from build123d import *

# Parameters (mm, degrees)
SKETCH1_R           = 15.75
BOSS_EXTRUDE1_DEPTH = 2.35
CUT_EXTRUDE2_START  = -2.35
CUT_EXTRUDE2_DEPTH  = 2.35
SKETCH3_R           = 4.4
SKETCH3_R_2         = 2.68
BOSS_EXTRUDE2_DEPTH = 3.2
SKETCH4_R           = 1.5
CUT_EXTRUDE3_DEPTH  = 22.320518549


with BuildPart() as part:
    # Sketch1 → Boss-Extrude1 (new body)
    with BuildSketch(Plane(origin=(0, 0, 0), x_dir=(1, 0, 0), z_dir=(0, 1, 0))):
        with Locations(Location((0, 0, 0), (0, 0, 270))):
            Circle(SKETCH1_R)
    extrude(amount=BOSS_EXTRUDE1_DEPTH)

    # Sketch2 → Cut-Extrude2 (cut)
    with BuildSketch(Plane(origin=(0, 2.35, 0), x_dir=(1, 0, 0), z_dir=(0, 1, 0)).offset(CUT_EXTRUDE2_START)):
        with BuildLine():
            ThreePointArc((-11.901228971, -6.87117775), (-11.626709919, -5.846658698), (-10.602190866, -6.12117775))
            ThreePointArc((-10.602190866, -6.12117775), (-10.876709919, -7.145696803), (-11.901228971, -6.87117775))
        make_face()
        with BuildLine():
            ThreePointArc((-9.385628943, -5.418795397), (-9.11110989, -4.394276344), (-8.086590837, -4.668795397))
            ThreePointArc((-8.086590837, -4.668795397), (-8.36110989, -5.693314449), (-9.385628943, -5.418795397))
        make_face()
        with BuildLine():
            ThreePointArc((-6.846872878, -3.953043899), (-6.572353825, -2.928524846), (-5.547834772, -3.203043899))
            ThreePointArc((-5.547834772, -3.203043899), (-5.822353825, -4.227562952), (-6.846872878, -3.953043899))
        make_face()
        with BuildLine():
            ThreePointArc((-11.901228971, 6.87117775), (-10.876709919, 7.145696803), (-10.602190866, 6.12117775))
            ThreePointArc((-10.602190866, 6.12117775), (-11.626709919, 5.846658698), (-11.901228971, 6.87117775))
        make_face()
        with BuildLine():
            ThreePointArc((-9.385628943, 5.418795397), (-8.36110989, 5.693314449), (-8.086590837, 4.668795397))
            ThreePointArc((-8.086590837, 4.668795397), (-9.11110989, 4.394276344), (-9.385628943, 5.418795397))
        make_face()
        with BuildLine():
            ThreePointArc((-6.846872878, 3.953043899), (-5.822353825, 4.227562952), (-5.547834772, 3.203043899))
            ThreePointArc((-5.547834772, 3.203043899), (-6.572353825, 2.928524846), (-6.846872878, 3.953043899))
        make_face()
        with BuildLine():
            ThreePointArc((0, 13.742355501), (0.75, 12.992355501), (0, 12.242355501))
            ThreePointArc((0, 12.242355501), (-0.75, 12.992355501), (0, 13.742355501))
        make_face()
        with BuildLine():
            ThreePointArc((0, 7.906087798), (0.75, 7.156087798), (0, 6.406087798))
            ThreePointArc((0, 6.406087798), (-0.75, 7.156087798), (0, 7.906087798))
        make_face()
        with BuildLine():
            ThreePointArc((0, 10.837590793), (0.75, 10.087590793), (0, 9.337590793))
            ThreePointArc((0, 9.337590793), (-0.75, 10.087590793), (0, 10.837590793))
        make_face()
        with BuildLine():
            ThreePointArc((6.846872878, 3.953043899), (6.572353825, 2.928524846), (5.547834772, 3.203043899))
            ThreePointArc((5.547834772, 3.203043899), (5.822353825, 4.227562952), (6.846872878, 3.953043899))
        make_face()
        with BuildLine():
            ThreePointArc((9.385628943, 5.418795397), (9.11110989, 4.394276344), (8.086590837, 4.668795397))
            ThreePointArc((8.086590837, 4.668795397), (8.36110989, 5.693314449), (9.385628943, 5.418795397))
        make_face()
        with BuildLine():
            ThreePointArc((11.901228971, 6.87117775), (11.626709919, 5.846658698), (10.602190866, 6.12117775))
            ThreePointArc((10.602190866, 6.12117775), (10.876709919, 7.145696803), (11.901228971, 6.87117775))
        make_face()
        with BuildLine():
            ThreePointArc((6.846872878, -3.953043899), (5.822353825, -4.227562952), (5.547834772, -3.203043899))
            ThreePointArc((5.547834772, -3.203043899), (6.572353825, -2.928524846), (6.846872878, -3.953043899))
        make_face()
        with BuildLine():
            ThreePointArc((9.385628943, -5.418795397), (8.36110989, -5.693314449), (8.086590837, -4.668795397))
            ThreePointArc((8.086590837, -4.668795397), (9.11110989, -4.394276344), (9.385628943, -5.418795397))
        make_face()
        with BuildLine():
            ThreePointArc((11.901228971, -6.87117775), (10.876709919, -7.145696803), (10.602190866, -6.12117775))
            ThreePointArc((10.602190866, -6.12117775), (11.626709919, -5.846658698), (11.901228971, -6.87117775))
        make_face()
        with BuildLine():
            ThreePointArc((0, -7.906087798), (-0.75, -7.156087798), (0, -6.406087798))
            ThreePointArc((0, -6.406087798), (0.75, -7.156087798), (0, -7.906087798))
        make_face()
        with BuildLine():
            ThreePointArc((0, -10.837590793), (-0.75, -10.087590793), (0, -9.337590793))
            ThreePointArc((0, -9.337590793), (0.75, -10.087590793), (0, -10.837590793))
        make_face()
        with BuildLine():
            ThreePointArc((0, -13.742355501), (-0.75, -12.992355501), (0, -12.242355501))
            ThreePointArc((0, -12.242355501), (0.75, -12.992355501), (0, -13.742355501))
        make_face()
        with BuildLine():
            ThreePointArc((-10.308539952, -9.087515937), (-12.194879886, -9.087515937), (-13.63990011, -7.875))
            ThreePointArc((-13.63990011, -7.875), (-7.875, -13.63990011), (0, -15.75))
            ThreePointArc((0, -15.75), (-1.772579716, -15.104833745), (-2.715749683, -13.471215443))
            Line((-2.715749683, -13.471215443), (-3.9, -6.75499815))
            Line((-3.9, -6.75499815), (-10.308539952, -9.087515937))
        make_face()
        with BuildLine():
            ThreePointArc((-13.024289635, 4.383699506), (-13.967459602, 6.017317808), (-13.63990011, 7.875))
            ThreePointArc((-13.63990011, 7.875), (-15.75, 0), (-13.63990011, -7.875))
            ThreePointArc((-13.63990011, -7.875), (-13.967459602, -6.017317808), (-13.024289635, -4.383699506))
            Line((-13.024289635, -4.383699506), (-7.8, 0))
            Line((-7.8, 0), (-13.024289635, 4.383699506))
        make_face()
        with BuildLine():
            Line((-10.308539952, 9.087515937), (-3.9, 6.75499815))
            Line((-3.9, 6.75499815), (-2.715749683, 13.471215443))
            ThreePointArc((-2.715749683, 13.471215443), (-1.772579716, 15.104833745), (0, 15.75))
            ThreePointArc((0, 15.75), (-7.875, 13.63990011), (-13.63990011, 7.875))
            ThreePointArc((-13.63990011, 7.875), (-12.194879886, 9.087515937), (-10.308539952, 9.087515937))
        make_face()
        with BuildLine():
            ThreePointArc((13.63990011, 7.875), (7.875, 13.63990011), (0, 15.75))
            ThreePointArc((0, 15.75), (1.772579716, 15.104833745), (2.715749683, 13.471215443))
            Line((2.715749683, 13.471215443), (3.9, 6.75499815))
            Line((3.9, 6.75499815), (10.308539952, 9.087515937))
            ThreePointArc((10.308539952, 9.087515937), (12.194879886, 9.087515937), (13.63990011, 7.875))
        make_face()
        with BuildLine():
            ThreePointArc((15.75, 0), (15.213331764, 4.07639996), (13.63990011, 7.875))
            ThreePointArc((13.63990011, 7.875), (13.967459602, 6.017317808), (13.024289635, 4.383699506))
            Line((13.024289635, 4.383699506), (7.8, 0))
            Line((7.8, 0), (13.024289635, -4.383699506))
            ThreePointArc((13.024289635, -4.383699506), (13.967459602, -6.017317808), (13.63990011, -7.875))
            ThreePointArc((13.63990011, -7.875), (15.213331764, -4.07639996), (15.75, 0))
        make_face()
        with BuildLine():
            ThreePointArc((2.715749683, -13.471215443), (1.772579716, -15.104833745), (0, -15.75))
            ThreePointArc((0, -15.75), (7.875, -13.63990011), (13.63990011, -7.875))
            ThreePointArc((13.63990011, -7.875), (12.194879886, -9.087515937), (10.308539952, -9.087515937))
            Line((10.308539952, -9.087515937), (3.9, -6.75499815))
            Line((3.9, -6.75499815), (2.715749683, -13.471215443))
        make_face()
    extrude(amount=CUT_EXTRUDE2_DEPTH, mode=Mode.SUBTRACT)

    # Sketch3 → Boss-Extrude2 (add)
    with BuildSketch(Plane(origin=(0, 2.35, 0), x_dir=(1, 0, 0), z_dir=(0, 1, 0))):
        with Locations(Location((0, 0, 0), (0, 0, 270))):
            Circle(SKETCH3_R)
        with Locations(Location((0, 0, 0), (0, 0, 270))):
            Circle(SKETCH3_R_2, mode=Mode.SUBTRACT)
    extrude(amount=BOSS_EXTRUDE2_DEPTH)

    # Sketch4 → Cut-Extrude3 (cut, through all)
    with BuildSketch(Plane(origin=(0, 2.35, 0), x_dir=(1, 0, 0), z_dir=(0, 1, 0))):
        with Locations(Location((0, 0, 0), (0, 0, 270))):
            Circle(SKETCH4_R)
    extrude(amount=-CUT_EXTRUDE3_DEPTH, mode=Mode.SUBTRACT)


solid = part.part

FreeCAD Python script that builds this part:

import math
import FreeCAD as App
import Part
import Sketcher

V = App.Vector
Q = App.Units.Quantity

doc = App.newDocument("Part")
body = doc.addObject("PartDesign::Body", "Body")

# Sketch on XZ plane
sketch1 = body.newObject("Sketcher::SketchObject", "Sketch")
sketch1.AttachmentSupport = (doc.getObject("XZ_Plane"), [""])
sketch1.MapMode = "FlatFace"
sketch1.addGeometry(Part.Circle(V(0, 0, 0), V(0, 0, 1), 15.75), False)
sketch1.addConstraint(Sketcher.Constraint("Coincident", 0, 3, -1, 1))
sketch1.addConstraint(Sketcher.Constraint("Diameter", 0, Q("31.5 mm")))
pad1 = body.newObject("PartDesign::Pad", "Pad")
pad1.Profile = sketch1
pad1.Length = 2.35
pad1.Reversed = True

# Sketch on XZ plane
sketch2 = body.newObject("Sketcher::SketchObject", "Sketch001")
sketch2.AttachmentSupport = (doc.getObject("XZ_Plane"), [""])
sketch2.MapMode = "FlatFace"
sketch2.addGeometry(Part.Circle(V(-11.25171, 6.496178, 0), V(0, 0, 1), 0.75), False)
sketch2.addGeometry(Part.ArcOfCircle(Part.Circle(V(-8.73611, 5.043795, 0), V(0, 0, 1), 0.75), math.radians(150), math.radians(330)), False)
sketch2.addGeometry(Part.ArcOfCircle(Part.Circle(V(-8.73611, 5.043795, 0), V(0, 0, 1), 0.75), math.radians(-30), math.radians(150)), False)
sketch2.addGeometry(Part.Circle(V(-6.197354, 3.578044, 0), V(0, 0, 1), 0.75), False)
sketch2.addGeometry(Part.Circle(V(-11.25171, -6.496178, 0), V(0, 0, 1), 0.75), False)
sketch2.addGeometry(Part.ArcOfCircle(Part.Circle(V(-8.73611, -5.043795, 0), V(0, 0, 1), 0.75), math.radians(-150), math.radians(30)), False)
sketch2.addGeometry(Part.ArcOfCircle(Part.Circle(V(-8.73611, -5.043795, 0), V(0, 0, 1), 0.75), math.radians(30), math.radians(210)), False)
sketch2.addGeometry(Part.Circle(V(-6.197354, -3.578044, 0), V(0, 0, 1), 0.75), False)
sketch2.addGeometry(Part.Circle(V(0, -12.992356, 0), V(0, 0, 1), 0.75), False)
sketch2.addGeometry(Part.Circle(V(0, -7.156088, 0), V(0, 0, 1), 0.75), False)
sketch2.addGeometry(Part.Circle(V(0, -10.087591, 0), V(0, 0, 1), 0.75), False)
sketch2.addGeometry(Part.Circle(V(6.197354, -3.578044, 0), V(0, 0, 1), 0.75), False)
sketch2.addGeometry(Part.ArcOfCircle(Part.Circle(V(8.73611, -5.043795, 0), V(0, 0, 1), 0.75), math.radians(-30), math.radians(150)), False)
sketch2.addGeometry(Part.ArcOfCircle(Part.Circle(V(8.73611, -5.043795, 0), V(0, 0, 1), 0.75), math.radians(150), math.radians(330)), False)
sketch2.addGeometry(Part.Circle(V(11.25171, -6.496178, 0), V(0, 0, 1), 0.75), False)
sketch2.addGeometry(Part.Circle(V(6.197354, 3.578044, 0), V(0, 0, 1), 0.75), False)
sketch2.addGeometry(Part.ArcOfCircle(Part.Circle(V(8.73611, 5.043795, 0), V(0, 0, 1), 0.75), math.radians(30), math.radians(210)), False)
sketch2.addGeometry(Part.ArcOfCircle(Part.Circle(V(8.73611, 5.043795, 0), V(0, 0, 1), 0.75), math.radians(-150), math.radians(30)), False)
sketch2.addGeometry(Part.Circle(V(11.25171, 6.496178, 0), V(0, 0, 1), 0.75), False)
sketch2.addGeometry(Part.Circle(V(0, 7.156088, 0), V(0, 0, 1), 0.75), False)
sketch2.addGeometry(Part.Circle(V(0, 10.087591, 0), V(0, 0, 1), 0.75), False)
sketch2.addGeometry(Part.Circle(V(0, 12.992356, 0), V(0, 0, 1), 0.75), False)
sketch2.addGeometry(Part.ArcOfCircle(Part.Circle(V(-11.25171, 6.496178, 0), V(0, 0, 1), 2.757644), math.radians(70), math.radians(150)), False)
sketch2.addGeometry(Part.ArcOfCircle(Part.Circle(V(0, 0, 0), V(0, 0, 1), 15.75), math.radians(90), math.radians(150)), False)
sketch2.addGeometry(Part.ArcOfCircle(Part.Circle(V(0, 12.992355, 0), V(0, 0, 1), 2.757645), math.radians(90), math.radians(170)), False)
sketch2.addGeometry(Part.LineSegment(V(-2.71575, 13.471215, 0), V(-3.9, 6.754998, 0)), False)
sketch2.addGeometry(Part.LineSegment(V(-3.9, 6.754998, 0), V(-10.30854, 9.087516, 0)), False)
sketch2.addGeometry(Part.ArcOfCircle(Part.Circle(V(-11.25171, -6.496178, 0), V(0, 0, 1), 2.757644), math.radians(130), math.radians(210)), False)
sketch2.addGeometry(Part.ArcOfCircle(Part.Circle(V(0, 0, 0), V(0, 0, 1), 15.75), math.radians(150), math.radians(210)), False)
sketch2.addGeometry(Part.ArcOfCircle(Part.Circle(V(-11.25171, 6.496178, 0), V(0, 0, 1), 2.757644), math.radians(150), math.radians(230)), False)
sketch2.addGeometry(Part.LineSegment(V(-13.02429, 4.3837, 0), V(-7.8, 0, 0)), False)
sketch2.addGeometry(Part.LineSegment(V(-7.8, 0, 0), V(-13.02429, -4.3837, 0)), False)
sketch2.addGeometry(Part.LineSegment(V(-10.30854, -9.087516, 0), V(-3.9, -6.754998, 0)), False)
sketch2.addGeometry(Part.LineSegment(V(-3.9, -6.754998, 0), V(-2.71575, -13.471215, 0)), False)
sketch2.addGeometry(Part.ArcOfCircle(Part.Circle(V(0, -12.992355, 0), V(0, 0, 1), 2.757645), math.radians(-170), math.radians(-90)), False)
sketch2.addGeometry(Part.ArcOfCircle(Part.Circle(V(0, 0, 0), V(0, 0, 1), 15.75), math.radians(-150), math.radians(-90)), False)
sketch2.addGeometry(Part.ArcOfCircle(Part.Circle(V(-11.25171, -6.496178, 0), V(0, 0, 1), 2.757644), math.radians(-150), math.radians(-70)), False)
sketch2.addGeometry(Part.ArcOfCircle(Part.Circle(V(0, 0, 0), V(0, 0, 1), 15.75), math.radians(-90), math.radians(-30)), False)
sketch2.addGeometry(Part.ArcOfCircle(Part.Circle(V(0, -12.992355, 0), V(0, 0, 1), 2.757645), math.radians(-90), math.radians(-10)), False)
sketch2.addGeometry(Part.LineSegment(V(2.71575, -13.471215, 0), V(3.9, -6.754998, 0)), False)
sketch2.addGeometry(Part.LineSegment(V(3.9, -6.754998, 0), V(10.30854, -9.087516, 0)), False)
sketch2.addGeometry(Part.ArcOfCircle(Part.Circle(V(11.25171, -6.496178, 0), V(0, 0, 1), 2.757644), math.radians(-110), math.radians(-30)), False)
sketch2.addGeometry(Part.ArcOfCircle(Part.Circle(V(0, 0, 0), V(0, 0, 1), 15.75), math.radians(-30), math.radians(0)), False)
sketch2.addGeometry(Part.ArcOfCircle(Part.Circle(V(11.25171, -6.496178, 0), V(0, 0, 1), 2.757644), math.radians(-30), math.radians(50)), False)
sketch2.addGeometry(Part.LineSegment(V(13.02429, -4.3837, 0), V(7.8, 0, 0)), False)
sketch2.addGeometry(Part.LineSegment(V(7.8, 0, 0), V(13.02429, 4.3837, 0)), False)
sketch2.addGeometry(Part.ArcOfCircle(Part.Circle(V(11.25171, 6.496178, 0), V(0, 0, 1), 2.757644), math.radians(-50), math.radians(30)), False)
sketch2.addGeometry(Part.ArcOfCircle(Part.Circle(V(0, 0, 0), V(0, 0, 1), 15.75), math.radians(0), math.radians(30)), False)
sketch2.addGeometry(Part.ArcOfCircle(Part.Circle(V(0, 12.992355, 0), V(0, 0, 1), 2.757645), math.radians(10), math.radians(90)), False)
sketch2.addGeometry(Part.ArcOfCircle(Part.Circle(V(0, 0, 0), V(0, 0, 1), 15.75), math.radians(30), math.radians(90)), False)
sketch2.addGeometry(Part.ArcOfCircle(Part.Circle(V(11.25171, 6.496178, 0), V(0, 0, 1), 2.757644), math.radians(30), math.radians(110)), False)
sketch2.addGeometry(Part.LineSegment(V(10.30854, 9.087516, 0), V(3.9, 6.754998, 0)), False)
sketch2.addGeometry(Part.LineSegment(V(3.9, 6.754998, 0), V(2.71575, 13.471215, 0)), False)
sketch2.addConstraint(Sketcher.Constraint("Tangent", 1, 1, 2, 2))
sketch2.addConstraint(Sketcher.Constraint("Coincident", 2, 1, 1, 2))
sketch2.addConstraint(Sketcher.Constraint("Tangent", 5, 1, 6, 2))
sketch2.addConstraint(Sketcher.Constraint("Coincident", 6, 1, 5, 2))
sketch2.addConstraint(Sketcher.Constraint("Tangent", 12, 1, 13, 2))
sketch2.addConstraint(Sketcher.Constraint("Coincident", 13, 1, 12, 2))
sketch2.addConstraint(Sketcher.Constraint("Tangent", 16, 1, 17, 2))
sketch2.addConstraint(Sketcher.Constraint("Coincident", 17, 1, 16, 2))
sketch2.addConstraint(Sketcher.Constraint("Tangent", 22, 2, 23, 2))
sketch2.addConstraint(Sketcher.Constraint("Tangent", 23, 1, 24, 1))
sketch2.addConstraint(Sketcher.Constraint("Tangent", 24, 2, 25, 1))
sketch2.addConstraint(Sketcher.Constraint("Coincident", 25, 2, 26, 1))
sketch2.addConstraint(Sketcher.Constraint("Tangent", 26, 2, 22, 1))
sketch2.addConstraint(Sketcher.Constraint("Tangent", 27, 2, 28, 2))
sketch2.addConstraint(Sketcher.Constraint("Tangent", 28, 1, 29, 1))
sketch2.addConstraint(Sketcher.Constraint("Tangent", 29, 2, 30, 1))
sketch2.addConstraint(Sketcher.Constraint("Coincident", 30, 2, 31, 1))
sketch2.addConstraint(Sketcher.Constraint("Tangent", 31, 2, 27, 1))
sketch2.addConstraint(Sketcher.Constraint("Coincident", 32, 2, 33, 1))
sketch2.addConstraint(Sketcher.Constraint("Tangent", 33, 2, 34, 1))
sketch2.addConstraint(Sketcher.Constraint("Tangent", 34, 2, 35, 2))
sketch2.addConstraint(Sketcher.Constraint("Tangent", 35, 1, 36, 1))
sketch2.addConstraint(Sketcher.Constraint("Tangent", 36, 2, 32, 1))
sketch2.addConstraint(Sketcher.Constraint("Tangent", 37, 1, 38, 1))
sketch2.addConstraint(Sketcher.Constraint("Tangent", 38, 2, 39, 1))
sketch2.addConstraint(Sketcher.Constraint("Coincident", 39, 2, 40, 1))
sketch2.addConstraint(Sketcher.Constraint("Tangent", 40, 2, 41, 1))
sketch2.addConstraint(Sketcher.Constraint("Tangent", 41, 2, 37, 2))
sketch2.addConstraint(Sketcher.Constraint("Tangent", 42, 1, 43, 1))
sketch2.addConstraint(Sketcher.Constraint("Tangent", 43, 2, 44, 1))
sketch2.addConstraint(Sketcher.Constraint("Coincident", 44, 2, 45, 1))
sketch2.addConstraint(Sketcher.Constraint("Tangent", 45, 2, 46, 1))
sketch2.addConstraint(Sketcher.Constraint("Tangent", 46, 2, 47, 2))
sketch2.addConstraint(Sketcher.Constraint("Tangent", 47, 1, 42, 2))
sketch2.addConstraint(Sketcher.Constraint("Tangent", 48, 2, 49, 2))
sketch2.addConstraint(Sketcher.Constraint("Tangent", 49, 1, 50, 1))
sketch2.addConstraint(Sketcher.Constraint("Tangent", 50, 2, 51, 1))
sketch2.addConstraint(Sketcher.Constraint("Coincident", 51, 2, 52, 1))
sketch2.addConstraint(Sketcher.Constraint("Tangent", 52, 2, 48, 1))
sketch2.addConstraint(Sketcher.Constraint("Coincident", 23, 3, -1, 1))
sketch2.addConstraint(Sketcher.Constraint("Coincident", 28, 3, -1, 1))
sketch2.addConstraint(Sketcher.Constraint("Coincident", 35, 3, -1, 1))
sketch2.addConstraint(Sketcher.Constraint("Coincident", 37, 3, -1, 1))
sketch2.addConstraint(Sketcher.Constraint("Coincident", 42, 3, -1, 1))
sketch2.addConstraint(Sketcher.Constraint("Coincident", 49, 3, -1, 1))
sketch2.addConstraint(Sketcher.Constraint("Coincident", 22, 3, 0, 3))
sketch2.addConstraint(Sketcher.Constraint("Coincident", 24, 3, 21, 3))
sketch2.addConstraint(Sketcher.Constraint("Coincident", 27, 3, 4, 3))
sketch2.addConstraint(Sketcher.Constraint("Coincident", 29, 3, 0, 3))
sketch2.addConstraint(Sketcher.Constraint("Coincident", 34, 3, 8, 3))
sketch2.addConstraint(Sketcher.Constraint("Coincident", 36, 3, 4, 3))
sketch2.addConstraint(Sketcher.Constraint("Coincident", 38, 3, 8, 3))
sketch2.addConstraint(Sketcher.Constraint("Coincident", 41, 3, 14, 3))
sketch2.addConstraint(Sketcher.Constraint("Coincident", 43, 3, 14, 3))
sketch2.addConstraint(Sketcher.Constraint("Coincident", 46, 3, 18, 3))
sketch2.addConstraint(Sketcher.Constraint("Coincident", 48, 3, 21, 3))
sketch2.addConstraint(Sketcher.Constraint("Coincident", 50, 3, 18, 3))
sketch2.addConstraint(Sketcher.Constraint("Coincident", 49, 1, 46, 2))
sketch2.addConstraint(Sketcher.Constraint("Equal", 0, 1))
sketch2.addConstraint(Sketcher.Constraint("Equal", 2, 3))
sketch2.addConstraint(Sketcher.Constraint("Equal", 3, 4))
sketch2.addConstraint(Sketcher.Constraint("Equal", 4, 5))
sketch2.addConstraint(Sketcher.Constraint("Equal", 6, 7))
sketch2.addConstraint(Sketcher.Constraint("Equal", 7, 8))
sketch2.addConstraint(Sketcher.Constraint("Equal", 8, 9))
sketch2.addConstraint(Sketcher.Constraint("Equal", 9, 10))
sketch2.addConstraint(Sketcher.Constraint("Equal", 10, 11))
sketch2.addConstraint(Sketcher.Constraint("Equal", 11, 12))
sketch2.addConstraint(Sketcher.Constraint("Equal", 13, 14))
sketch2.addConstraint(Sketcher.Constraint("Equal", 14, 15))
sketch2.addConstraint(Sketcher.Constraint("Equal", 15, 16))
sketch2.addConstraint(Sketcher.Constraint("Equal", 17, 18))
sketch2.addConstraint(Sketcher.Constraint("Equal", 18, 19))
sketch2.addConstraint(Sketcher.Constraint("Equal", 19, 20))
sketch2.addConstraint(Sketcher.Constraint("Equal", 20, 21))
sketch2.addConstraint(Sketcher.Constraint("Equal", 22, 24))
sketch2.addConstraint(Sketcher.Constraint("Equal", 24, 27))
sketch2.addConstraint(Sketcher.Constraint("Equal", 23, 28))
sketch2.addConstraint(Sketcher.Constraint("Equal", 29, 34))
sketch2.addConstraint(Sketcher.Constraint("Equal", 28, 35))
sketch2.addConstraint(Sketcher.Constraint("Equal", 35, 37))
sketch2.addConstraint(Sketcher.Constraint("Equal", 38, 41))
sketch2.addConstraint(Sketcher.Constraint("Equal", 37, 42))
sketch2.addConstraint(Sketcher.Constraint("Equal", 43, 46))
sketch2.addConstraint(Sketcher.Constraint("Symmetric", 3, 3, 11, 3, -1, 1))
sketch2.addConstraint(Sketcher.Constraint("Symmetric", 1, 3, 12, 3, -1, 1))
sketch2.addConstraint(Sketcher.Constraint("Symmetric", 7, 3, 15, 3, -1, 1))
sketch2.addConstraint(Sketcher.Constraint("Symmetric", 5, 3, 16, 3, -1, 1))
sketch2.addConstraint(Sketcher.Constraint("Symmetric", 9, 3, 19, 3, -1, 1))
sketch2.addConstraint(Sketcher.Constraint("Symmetric", 10, 3, 20, 3, -1, 1))
sketch2.addConstraint(Sketcher.Constraint("Symmetric", 24, 2, 38, 2, -1, 1))
sketch2.addConstraint(Sketcher.Constraint("Symmetric", 26, 2, 40, 2, -1, 1))
sketch2.addConstraint(Sketcher.Constraint("Symmetric", 30, 2, 44, 2, -1, 1))
sketch2.addConstraint(Sketcher.Constraint("Symmetric", 36, 2, 50, 2, -1, 1))
sketch2.addConstraint(Sketcher.Constraint("Symmetric", 7, 3, 11, 3, -2))
sketch2.addConstraint(Sketcher.Constraint("Symmetric", 5, 3, 12, 3, -2))
sketch2.addConstraint(Sketcher.Constraint("Symmetric", 33, 2, 38, 2, -2))
sketch2.addConstraint(Sketcher.Constraint("Symmetric", 36, 2, 40, 2, -2))
sketch2.addConstraint(Sketcher.Constraint("PointOnObject", 9, 3, -2))
sketch2.addConstraint(Sketcher.Constraint("PointOnObject", 10, 3, -2))
sketch2.addConstraint(Sketcher.Constraint("PointOnObject", 30, 2, -1))
sketch2.addConstraint(Sketcher.Constraint("PointOnObject", 47, 1, -1))
sketch2.addConstraint(Sketcher.Constraint("Parallel", 33, 52))
sketch2.addConstraint(Sketcher.Constraint("Horizontal", 5, 1, 12, 1))
sketch2.addConstraint(Sketcher.Constraint("Horizontal", 6, 1, 13, 1))
sketch2.addConstraint(Sketcher.Constraint("Horizontal", 1, 1, 16, 1))
sketch2.addConstraint(Sketcher.Constraint("Horizontal", 2, 1, 17, 1))
sketch2.addConstraint(Sketcher.Constraint("Vertical", 1, 1, 5, 1))
sketch2.addConstraint(Sketcher.Constraint("Vertical", 2, 1, 6, 1))
sketch2.addConstraint(Sketcher.Constraint("Equal", 25, 26))
sketch2.addConstraint(Sketcher.Constraint("Equal", 26, 30))
sketch2.addConstraint(Sketcher.Constraint("Diameter", 0, Q("1.5 mm")))
sketch2.addConstraint(Sketcher.Constraint("Angle", 25, Q("-100 deg")))
sketch2.addConstraint(Sketcher.Constraint("Angle", 26, Q("160 deg")))
sketch2.addConstraint(Sketcher.Constraint("Radius", 23, Q("15.75 mm")))
sketch2.addConstraint(Sketcher.Constraint("DistanceX", 25, 2, -1, 1, Q("3.9 mm")))
sketch2.addConstraint(Sketcher.Constraint("DistanceX", 1, 3, -1, 1, Q("8.73611 mm")))
sketch2.addConstraint(Sketcher.Constraint("DistanceY", 10, 3, -1, 1, Q("10.087591 mm")))
sketch2.addConstraint(Sketcher.Constraint("DistanceX", 1, 1, -1, 1, Q("9.385629 mm")))
sketch2.addConstraint(Sketcher.Constraint("DistanceX", 2, 1, -1, 1, Q("8.086591 mm")))
sketch2.addConstraint(Sketcher.Constraint("DistanceY", -1, 1, 1, 3, Q("5.043795 mm")))
sketch2.addConstraint(Sketcher.Constraint("DistanceX", 3, 3, -1, 1, Q("6.197354 mm")))
sketch2.addConstraint(Sketcher.Constraint("DistanceY", -1, 1, 3, 3, Q("3.578044 mm")))
sketch2.addConstraint(Sketcher.Constraint("DistanceY", 9, 3, -1, 1, Q("7.156088 mm")))
pocket1 = body.newObject("PartDesign::Pocket", "Pocket")
pocket1.Profile = sketch2
pocket1.Length = 2.35

# Sketch on XZ plane
sketch3 = body.newObject("Sketcher::SketchObject", "Sketch002")
sketch3.AttachmentSupport = (doc.getObject("XZ_Plane"), [""])
sketch3.MapMode = "FlatFace"
sketch3.AttachmentOffset = App.Placement(V(0, 0, -2.35), App.Rotation())
sketch3.addGeometry(Part.Circle(V(0, 0, 0), V(0, 0, 1), 4.4), False)
sketch3.addGeometry(Part.Circle(V(0, 0, 0), V(0, 0, 1), 2.68), False)
sketch3.addConstraint(Sketcher.Constraint("Coincident", 0, 3, -1, 1))
sketch3.addConstraint(Sketcher.Constraint("Coincident", 1, 3, -1, 1))
sketch3.addConstraint(Sketcher.Constraint("Diameter", 0, Q("8.8 mm")))
sketch3.addConstraint(Sketcher.Constraint("Diameter", 1, Q("5.36 mm")))
pad2 = body.newObject("PartDesign::Pad", "Pad001")
pad2.Profile = sketch3
pad2.Length = 3.2
pad2.Reversed = True

# Sketch on XZ plane
sketch4 = body.newObject("Sketcher::SketchObject", "Sketch003")
sketch4.AttachmentSupport = (doc.getObject("XZ_Plane"), [""])
sketch4.MapMode = "FlatFace"
sketch4.AttachmentOffset = App.Placement(V(0, 0, -2.35), App.Rotation())
sketch4.addGeometry(Part.Circle(V(0, 0, 0), V(0, 0, 1), 1.5), False)
sketch4.addConstraint(Sketcher.Constraint("Coincident", 0, 3, -1, 1))
sketch4.addConstraint(Sketcher.Constraint("Diameter", 0, Q("3 mm")))
pocket2 = body.newObject("PartDesign::Pocket", "Pocket001")
pocket2.Profile = sketch4
pocket2.Type = "ThroughAll"
pocket2.Reversed = True

doc.recompute()
